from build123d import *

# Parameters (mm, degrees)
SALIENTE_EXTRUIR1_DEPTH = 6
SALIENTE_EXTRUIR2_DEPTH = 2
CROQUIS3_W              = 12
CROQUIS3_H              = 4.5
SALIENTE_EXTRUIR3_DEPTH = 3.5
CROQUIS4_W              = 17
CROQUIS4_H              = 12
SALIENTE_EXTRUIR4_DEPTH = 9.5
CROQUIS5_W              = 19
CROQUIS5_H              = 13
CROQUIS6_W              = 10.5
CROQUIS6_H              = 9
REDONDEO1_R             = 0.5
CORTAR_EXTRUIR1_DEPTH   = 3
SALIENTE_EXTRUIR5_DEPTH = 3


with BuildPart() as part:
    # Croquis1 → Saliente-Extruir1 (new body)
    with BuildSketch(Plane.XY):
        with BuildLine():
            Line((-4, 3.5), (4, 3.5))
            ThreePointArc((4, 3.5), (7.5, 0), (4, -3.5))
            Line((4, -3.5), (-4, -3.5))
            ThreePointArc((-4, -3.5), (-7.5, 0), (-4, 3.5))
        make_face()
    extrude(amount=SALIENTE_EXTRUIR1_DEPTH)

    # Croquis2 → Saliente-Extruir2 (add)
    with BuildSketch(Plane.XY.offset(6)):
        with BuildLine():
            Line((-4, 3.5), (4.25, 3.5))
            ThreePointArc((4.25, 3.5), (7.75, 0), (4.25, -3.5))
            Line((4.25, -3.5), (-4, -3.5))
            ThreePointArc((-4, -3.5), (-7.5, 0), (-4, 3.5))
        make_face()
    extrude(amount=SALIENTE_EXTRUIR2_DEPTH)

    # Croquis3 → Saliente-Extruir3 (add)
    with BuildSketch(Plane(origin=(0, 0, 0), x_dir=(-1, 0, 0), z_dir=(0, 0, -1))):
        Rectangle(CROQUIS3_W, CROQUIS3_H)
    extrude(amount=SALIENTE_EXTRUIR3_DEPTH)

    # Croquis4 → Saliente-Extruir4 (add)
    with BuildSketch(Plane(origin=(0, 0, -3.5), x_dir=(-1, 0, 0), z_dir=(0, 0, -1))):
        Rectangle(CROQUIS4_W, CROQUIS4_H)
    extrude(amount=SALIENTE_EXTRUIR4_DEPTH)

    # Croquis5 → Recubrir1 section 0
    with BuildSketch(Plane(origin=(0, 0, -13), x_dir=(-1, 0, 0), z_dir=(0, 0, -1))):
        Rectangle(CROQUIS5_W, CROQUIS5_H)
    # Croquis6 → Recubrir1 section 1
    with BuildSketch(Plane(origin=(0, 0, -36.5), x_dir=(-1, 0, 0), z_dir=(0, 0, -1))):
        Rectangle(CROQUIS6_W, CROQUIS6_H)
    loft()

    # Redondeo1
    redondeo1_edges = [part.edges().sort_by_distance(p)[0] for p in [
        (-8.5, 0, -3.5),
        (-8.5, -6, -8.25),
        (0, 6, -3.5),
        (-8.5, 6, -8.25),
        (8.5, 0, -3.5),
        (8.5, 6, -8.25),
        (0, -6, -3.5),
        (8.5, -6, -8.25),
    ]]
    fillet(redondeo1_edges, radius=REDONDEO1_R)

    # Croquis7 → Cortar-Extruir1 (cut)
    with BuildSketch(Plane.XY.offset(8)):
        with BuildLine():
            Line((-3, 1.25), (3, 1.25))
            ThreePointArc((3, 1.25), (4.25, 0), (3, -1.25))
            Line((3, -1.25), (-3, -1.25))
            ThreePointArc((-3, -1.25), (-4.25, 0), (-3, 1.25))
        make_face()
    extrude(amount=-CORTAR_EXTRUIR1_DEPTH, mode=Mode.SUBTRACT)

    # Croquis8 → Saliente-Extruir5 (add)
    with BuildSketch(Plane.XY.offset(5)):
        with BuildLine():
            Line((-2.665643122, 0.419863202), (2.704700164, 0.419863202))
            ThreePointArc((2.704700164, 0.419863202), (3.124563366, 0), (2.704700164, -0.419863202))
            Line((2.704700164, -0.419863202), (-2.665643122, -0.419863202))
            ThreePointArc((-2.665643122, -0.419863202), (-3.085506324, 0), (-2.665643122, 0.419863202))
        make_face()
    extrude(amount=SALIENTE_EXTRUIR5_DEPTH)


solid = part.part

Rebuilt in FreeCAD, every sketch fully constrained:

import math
import FreeCAD as App
import Part
import Sketcher
Q = App.Units.Quantity


def edges_at(feature, points):
    """Names of the edges that pass closest to the given points."""
    edges = feature.Shape.Edges
    near = lambda p: min(range(len(edges)), key=lambda i: edges[i].distToShape(Part.Vertex(*p))[0])
    return sorted({f"Edge{near(p) + 1}" for p in points})

doc = App.newDocument("Part")
body = doc.addObject("PartDesign::Body", "Body")

# Sketch on XY plane
sketch1 = body.newObject("Sketcher::SketchObject", "Sketch")
sketch1.AttachmentSupport = (doc.getObject("XY_Plane"), [""])
sketch1.MapMode = "FlatFace"
sketch1.addGeometry(Part.LineSegment(App.Vector(4, 3.5, 0), App.Vector(-4, 3.5, 0)), False)
sketch1.addGeometry(Part.ArcOfCircle(Part.Circle(App.Vector(-4, 0, 0), App.Vector(0, 0, 1), 3.5), math.radians(90), math.radians(270)), False)
sketch1.addGeometry(Part.LineSegment(App.Vector(-4, -3.5, 0), App.Vector(4, -3.5, 0)), False)
sketch1.addGeometry(Part.ArcOfCircle(Part.Circle(App.Vector(4, 0, 0), App.Vector(0, 0, 1), 3.5), math.radians(-90), math.radians(90)), False)
sketch1.addConstraint(Sketcher.Constraint("Tangent", 0, 2, 1, 1))
sketch1.addConstraint(Sketcher.Constraint("Tangent", 1, 2, 2, 1))
sketch1.addConstraint(Sketcher.Constraint("Tangent", 2, 2, 3, 1))
sketch1.addConstraint(Sketcher.Constraint("Tangent", 3, 2, 0, 1))
sketch1.addConstraint(Sketcher.Constraint("Horizontal", 0))
sketch1.addConstraint(Sketcher.Constraint("Horizontal", 2))
sketch1.addConstraint(Sketcher.Constraint("Symmetric", 1, 3, 3, 3, -1, 1))
sketch1.addConstraint(Sketcher.Constraint("Radius", 1, Q("3.5 mm")))
sketch1.addConstraint(Sketcher.Constraint("DistanceX", 0, 2, 0, 1, Q("8 mm")))
pad1 = body.newObject("PartDesign::Pad", "Pad")
pad1.Profile = sketch1
pad1.Length = 6

# Sketch on XY plane
sketch2 = body.newObject("Sketcher::SketchObject", "Sketch001")
sketch2.AttachmentSupport = (doc.getObject("XY_Plane"), [""])
sketch2.MapMode = "FlatFace"
sketch2.AttachmentOffset = App.Placement(App.Vector(0, 0, 6), App.Rotation())
sketch2.addGeometry(Part.LineSegment(App.Vector(4.2, 3.5, 0), App.Vector(-4, 3.5, 0)), False)
sketch2.addGeometry(Part.ArcOfCircle(Part.Circle(App.Vector(-4, 0, 0), App.Vector(0, 0, 1), 3.5), math.radians(90), math.radians(270)), False)
sketch2.addGeometry(Part.LineSegment(App.Vector(-4, -3.5, 0), App.Vector(4.2, -3.5, 0)), False)
sketch2.addGeometry(Part.ArcOfCircle(Part.Circle(App.Vector(4.2, 0, 0), App.Vector(0, 0, 1), 3.5), math.radians(-90), math.radians(90)), False)
sketch2.addConstraint(Sketcher.Constraint("Tangent", 0, 2, 1, 1))
sketch2.addConstraint(Sketcher.Constraint("Tangent", 1, 2, 2, 1))
sketch2.addConstraint(Sketcher.Constraint("Tangent", 2, 2, 3, 1))
sketch2.addConstraint(Sketcher.Constraint("Tangent", 3, 2, 0, 1))
sketch2.addConstraint(Sketcher.Constraint("Horizontal", 0))
sketch2.addConstraint(Sketcher.Constraint("Horizontal", 2))
sketch2.addConstraint(Sketcher.Constraint("PointOnObject", 1, 3, -1))
sketch2.addConstraint(Sketcher.Constraint("Radius", 1, Q("3.5 mm")))
sketch2.addConstraint(Sketcher.Constraint("DistanceX", 1, 3, -1, 1, Q("4 mm")))
sketch2.addConstraint(Sketcher.Constraint("DistanceX", 0, 2, 0, 1, Q("8.25 mm")))
pad2 = body.newObject("PartDesign::Pad", "Pad001")
pad2.Profile = sketch2
pad2.Length = 2

# Sketch on XY plane
sketch3 = body.newObject("Sketcher::SketchObject", "Sketch002")
sketch3.AttachmentSupport = (doc.getObject("XY_Plane"), [""])
sketch3.MapMode = "FlatFace"
sketch3.addGeometry(Part.LineSegment(App.Vector(6, 2.2, 0), App.Vector(6, -2.2, 0)), False)
sketch3.addGeometry(Part.LineSegment(App.Vector(6, -2.2, 0), App.Vector(-6, -2.2, 0)), False)
sketch3.addGeometry(Part.LineSegment(App.Vector(-6, -2.2, 0), App.Vector(-6, 2.2, 0)), False)
sketch3.addGeometry(Part.LineSegment(App.Vector(-6, 2.2, 0), App.Vector(6, 2.2, 0)), False)
sketch3.addConstraint(Sketcher.Constraint("Coincident", 0, 2, 1, 1))
sketch3.addConstraint(Sketcher.Constraint("Coincident", 1, 2, 2, 1))
sketch3.addConstraint(Sketcher.Constraint("Coincident", 2, 2, 3, 1))
sketch3.addConstraint(Sketcher.Constraint("Coincident", 3, 2, 0, 1))
sketch3.addConstraint(Sketcher.Constraint("Vertical", 0))
sketch3.addConstraint(Sketcher.Constraint("Horizontal", 1))
sketch3.addConstraint(Sketcher.Constraint("Vertical", 2))
sketch3.addConstraint(Sketcher.Constraint("Horizontal", 3))
sketch3.addConstraint(Sketcher.Constraint("Symmetric", 0, 2, 2, 2, -1, 1))
sketch3.addConstraint(Sketcher.Constraint("DistanceX", 1, 2, 1, 1, Q("12 mm")))
sketch3.addConstraint(Sketcher.Constraint("DistanceY", 0, 2, 0, 1, Q("4.5 mm")))
pad3 = body.newObject("PartDesign::Pad", "Pad002")
pad3.Profile = sketch3
pad3.Length = 3.5
pad3.Reversed = True

# Sketch on XY plane
sketch4 = body.newObject("Sketcher::SketchObject", "Sketch003")
sketch4.AttachmentSupport = (doc.getObject("XY_Plane"), [""])
sketch4.MapMode = "FlatFace"
sketch4.AttachmentOffset = App.Placement(App.Vector(0, 0, -3.5), App.Rotation())
sketch4.addGeometry(Part.LineSegment(App.Vector(8, 6, 0), App.Vector(8, -6, 0)), False)
sketch4.addGeometry(Part.LineSegment(App.Vector(8, -6, 0), App.Vector(-8, -6, 0)), False)
sketch4.addGeometry(Part.LineSegment(App.Vector(-8, -6, 0), App.Vector(-8, 6, 0)), False)
sketch4.addGeometry(Part.LineSegment(App.Vector(-8, 6, 0), App.Vector(8, 6, 0)), False)
sketch4.addConstraint(Sketcher.Constraint("Coincident", 0, 2, 1, 1))
sketch4.addConstraint(Sketcher.Constraint("Coincident", 1, 2, 2, 1))
sketch4.addConstraint(Sketcher.Constraint("Coincident", 2, 2, 3, 1))
sketch4.addConstraint(Sketcher.Constraint("Coincident", 3, 2, 0, 1))
sketch4.addConstraint(Sketcher.Constraint("Vertical", 0))
sketch4.addConstraint(Sketcher.Constraint("Horizontal", 1))
sketch4.addConstraint(Sketcher.Constraint("Vertical", 2))
sketch4.addConstraint(Sketcher.Constraint("Horizontal", 3))
sketch4.addConstraint(Sketcher.Constraint("Symmetric", 0, 2, 2, 2, -1, 1))
sketch4.addConstraint(Sketcher.Constraint("DistanceX", 1, 2, 1, 1, Q("17 mm")))
sketch4.addConstraint(Sketcher.Constraint("DistanceY", 0, 2, 0, 1, Q("12 mm")))
pad4 = body.newObject("PartDesign::Pad", "Pad003")
pad4.Profile = sketch4
pad4.Length = 9.5
pad4.Reversed = True

# Sketch on XY plane
sketch5 = body.newObject("Sketcher::SketchObject", "Sketch004")
sketch5.AttachmentSupport = (doc.getObject("XY_Plane"), [""])
sketch5.MapMode = "FlatFace"
sketch5.AttachmentOffset = App.Placement(App.Vector(0, 0, -13), App.Rotation())
sketch5.addGeometry(Part.LineSegment(App.Vector(10, 6, 0), App.Vector(10, -6, 0)), False)
sketch5.addGeometry(Part.LineSegment(App.Vector(10, -6, 0), App.Vector(-10, -6, 0)), False)
sketch5.addGeometry(Part.LineSegment(App.Vector(-10, -6, 0), App.Vector(-10, 6, 0)), False)
sketch5.addGeometry(Part.LineSegment(App.Vector(-10, 6, 0), App.Vector(10, 6, 0)), False)
sketch5.addConstraint(Sketcher.Constraint("Coincident", 0, 2, 1, 1))
sketch5.addConstraint(Sketcher.Constraint("Coincident", 1, 2, 2, 1))
sketch5.addConstraint(Sketcher.Constraint("Coincident", 2, 2, 3, 1))
sketch5.addConstraint(Sketcher.Constraint("Coincident", 3, 2, 0, 1))
sketch5.addConstraint(Sketcher.Constraint("Vertical", 0))
sketch5.addConstraint(Sketcher.Constraint("Horizontal", 1))
sketch5.addConstraint(Sketcher.Constraint("Vertical", 2))
sketch5.addConstraint(Sketcher.Constraint("Horizontal", 3))
sketch5.addConstraint(Sketcher.Constraint("Symmetric", 0, 2, 2, 2, -1, 1))
sketch5.addConstraint(Sketcher.Constraint("DistanceX", 1, 2, 1, 1, Q("19 mm")))
sketch5.addConstraint(Sketcher.Constraint("DistanceY", 0, 2, 0, 1, Q("13 mm")))

# Sketch on XY plane
sketch6 = body.newObject("Sketcher::SketchObject", "Sketch005")
sketch6.AttachmentSupport = (doc.getObject("XY_Plane"), [""])
sketch6.MapMode = "FlatFace"
sketch6.AttachmentOffset = App.Placement(App.Vector(0, 0, -36.5), App.Rotation())
sketch6.addGeometry(Part.LineSegment(App.Vector(5, 4, 0), App.Vector(5, -4, 0)), False)
sketch6.addGeometry(Part.LineSegment(App.Vector(5, -4, 0), App.Vector(-5, -4, 0)), False)
sketch6.addGeometry(Part.LineSegment(App.Vector(-5, -4, 0), App.Vector(-5, 4, 0)), False)
sketch6.addGeometry(Part.LineSegment(App.Vector(-5, 4, 0), App.Vector(5, 4, 0)), False)
sketch6.addConstraint(Sketcher.Constraint("Coincident", 0, 2, 1, 1))
sketch6.addConstraint(Sketcher.Constraint("Coincident", 1, 2, 2, 1))
sketch6.addConstraint(Sketcher.Constraint("Coincident", 2, 2, 3, 1))
sketch6.addConstraint(Sketcher.Constraint("Coincident", 3, 2, 0, 1))
sketch6.addConstraint(Sketcher.Constraint("Vertical", 0))
sketch6.addConstraint(Sketcher.Constraint("Horizontal", 1))
sketch6.addConstraint(Sketcher.Constraint("Vertical", 2))
sketch6.addConstraint(Sketcher.Constraint("Horizontal", 3))
sketch6.addConstraint(Sketcher.Constraint("Symmetric", 0, 2, 2, 2, -1, 1))
sketch6.addConstraint(Sketcher.Constraint("DistanceY", 0, 2, 0, 1, Q("9 mm")))
sketch6.addConstraint(Sketcher.Constraint("DistanceX", 1, 2, 1, 1, Q("10.5 mm")))

additiveloft = body.newObject("PartDesign::AdditiveLoft", "AdditiveLoft")
additiveloft.Profile = sketch5
additiveloft.Sections = [sketch6]
doc.recompute()

fillet = body.newObject("PartDesign::Fillet", "Fillet")
fillet.Base = (additiveloft, edges_at(additiveloft, [
    (-8.5, 0, -3.5),
    (-8.5, -6, -8.25),
    (0, 6, -3.5),
    (-8.5, 6, -8.25),
    (8.5, 0, -3.5),
    (8.5, 6, -8.25),
    (0, -6, -3.5),
    (8.5, -6, -8.25),
]))
fillet.Radius = 0.5

# Sketch on XY plane
sketch7 = body.newObject("Sketcher::SketchObject", "Sketch006")
sketch7.AttachmentSupport = (doc.getObject("XY_Plane"), [""])
sketch7.MapMode = "FlatFace"
sketch7.AttachmentOffset = App.Placement(App.Vector(0, 0, 8), App.Rotation())
sketch7.addGeometry(Part.LineSegment(App.Vector(3, 1.2, 0), App.Vector(-3, 1.2, 0)), False)
sketch7.addGeometry(Part.ArcOfCircle(Part.Circle(App.Vector(-3, 0, 0), App.Vector(0, 0, 1), 1.2), math.radians(90), math.radians(270)), False)
sketch7.addGeometry(Part.LineSegment(App.Vector(-3, -1.2, 0), App.Vector(3, -1.2, 0)), False)
sketch7.addGeometry(Part.ArcOfCircle(Part.Circle(App.Vector(3, 0, 0), App.Vector(0, 0, 1), 1.2), math.radians(-90), math.radians(90)), False)
sketch7.addConstraint(Sketcher.Constraint("Tangent", 0, 2, 1, 1))
sketch7.addConstraint(Sketcher.Constraint("Tangent", 1, 2, 2, 1))
sketch7.addConstraint(Sketcher.Constraint("Tangent", 2, 2, 3, 1))
sketch7.addConstraint(Sketcher.Constraint("Tangent", 3, 2, 0, 1))
sketch7.addConstraint(Sketcher.Constraint("Horizontal", 0))
sketch7.addConstraint(Sketcher.Constraint("Horizontal", 2))
sketch7.addConstraint(Sketcher.Constraint("Symmetric", 1, 3, 3, 3, -1, 1))
sketch7.addConstraint(Sketcher.Constraint("DistanceX", 0, 2, 0, 1, Q("6 mm")))
sketch7.addConstraint(Sketcher.Constraint("Radius", 1, Q("1.25 mm")))
pocket1 = body.newObject("PartDesign::Pocket", "Pocket")
pocket1.Profile = sketch7
pocket1.Length = 3

# Sketch on XY plane
sketch8 = body.newObject("Sketcher::SketchObject", "Sketch007")
sketch8.AttachmentSupport = (doc.getObject("XY_Plane"), [""])
sketch8.MapMode = "FlatFace"
sketch8.AttachmentOffset = App.Placement(App.Vector(0, 0, 5), App.Rotation())
sketch8.addGeometry(Part.LineSegment(App.Vector(2.7, 0.42, 0), App.Vector(-2.67, 0.42, 0)), False)
sketch8.addGeometry(Part.ArcOfCircle(Part.Circle(App.Vector(-2.67, 0, 0), App.Vector(0, 0, 1), 0.42), math.radians(90), math.radians(270)), False)
sketch8.addGeometry(Part.LineSegment(App.Vector(-2.67, -0.42, 0), App.Vector(2.7, -0.42, 0)), False)
sketch8.addGeometry(Part.ArcOfCircle(Part.Circle(App.Vector(2.7, 0, 0), App.Vector(0, 0, 1), 0.42), math.radians(-90), math.radians(90)), False)
sketch8.addConstraint(Sketcher.Constraint("Tangent", 0, 2, 1, 1))
sketch8.addConstraint(Sketcher.Constraint("Tangent", 1, 2, 2, 1))
sketch8.addConstraint(Sketcher.Constraint("Tangent", 2, 2, 3, 1))
sketch8.addConstraint(Sketcher.Constraint("Tangent", 3, 2, 0, 1))
sketch8.addConstraint(Sketcher.Constraint("Horizontal", 0))
sketch8.addConstraint(Sketcher.Constraint("Horizontal", 2))
sketch8.addConstraint(Sketcher.Constraint("PointOnObject", 1, 3, -1))
sketch8.addConstraint(Sketcher.Constraint("Radius", 1, Q("0.419863 mm")))
sketch8.addConstraint(Sketcher.Constraint("DistanceX", -1, 1, 3, 3, Q("2.7047 mm")))
sketch8.addConstraint(Sketcher.Constraint("DistanceX", 0, 2, 0, 1, Q("5.370343 mm")))
pad5 = body.newObject("PartDesign::Pad", "Pad004")
pad5.Profile = sketch8
pad5.Length = 3

doc.recompute()
